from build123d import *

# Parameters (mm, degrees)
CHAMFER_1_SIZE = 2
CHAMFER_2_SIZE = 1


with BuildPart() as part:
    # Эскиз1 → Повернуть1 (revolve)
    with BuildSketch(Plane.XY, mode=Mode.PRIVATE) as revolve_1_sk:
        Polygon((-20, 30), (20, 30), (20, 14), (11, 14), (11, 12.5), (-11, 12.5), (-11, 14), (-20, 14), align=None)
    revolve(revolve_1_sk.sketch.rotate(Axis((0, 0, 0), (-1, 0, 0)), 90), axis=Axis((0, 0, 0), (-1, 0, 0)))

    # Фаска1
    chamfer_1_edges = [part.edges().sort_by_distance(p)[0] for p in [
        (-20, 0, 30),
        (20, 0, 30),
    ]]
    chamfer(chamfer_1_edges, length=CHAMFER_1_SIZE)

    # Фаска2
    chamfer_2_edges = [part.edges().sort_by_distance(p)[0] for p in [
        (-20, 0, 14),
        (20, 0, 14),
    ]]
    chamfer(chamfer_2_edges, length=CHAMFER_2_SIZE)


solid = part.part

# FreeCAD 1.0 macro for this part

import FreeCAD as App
import Part
import Sketcher
from FreeCAD import Vector


def edges_at(feature, points):
    """Names of the edges that pass closest to the given points."""
    edges = feature.Shape.Edges
    near = lambda p: min(range(len(edges)), key=lambda i: edges[i].distToShape(Part.Vertex(*p))[0])
    return sorted({f"Edge{near(p) + 1}" for p in points})

doc = App.newDocument("Part")
body = doc.addObject("PartDesign::Body", "Body")

# Sketch on XY plane
sketch1 = body.newObject("Sketcher::SketchObject", "Sketch")
sketch1.AttachmentSupport = (doc.getObject("XY_Plane"), [""])
sketch1.MapMode = "FlatFace"
sketch1.addGeometry([
    Part.LineSegment(Vector(20, 30, 0), Vector(-20, 30, 0)),  # 0
    Part.LineSegment(Vector(-20, 30, 0), Vector(-20, 14, 0)),  # 1
    Part.LineSegment(Vector(-20, 14, 0), Vector(-11, 14, 0)),  # 2
    Part.LineSegment(Vector(-11, 14, 0), Vector(-11, 12.5, 0)),  # 3
    Part.LineSegment(Vector(-11, 12.5, 0), Vector(11, 12.5, 0)),  # 4
    Part.LineSegment(Vector(11, 12.5, 0), Vector(11, 14, 0)),  # 5
    Part.LineSegment(Vector(11, 14, 0), Vector(20, 14, 0)),  # 6
    Part.LineSegment(Vector(20, 14, 0), Vector(20, 30, 0)),  # 7
], False)
sketch1.addConstraint([
    Sketcher.Constraint("Coincident", 0, 2, 1, 1),
    Sketcher.Constraint("Coincident", 1, 2, 2, 1),
    Sketcher.Constraint("Coincident", 2, 2, 3, 1),
    Sketcher.Constraint("Coincident", 3, 2, 4, 1),
    Sketcher.Constraint("Coincident", 4, 2, 5, 1),
    Sketcher.Constraint("Coincident", 5, 2, 6, 1),
    Sketcher.Constraint("Coincident", 6, 2, 7, 1),
    Sketcher.Constraint("Coincident", 7, 2, 0, 1),
    Sketcher.Constraint("Horizontal", 0),
    Sketcher.Constraint("Vertical", 1),
    Sketcher.Constraint("Horizontal", 2),
    Sketcher.Constraint("Vertical", 3),
    Sketcher.Constraint("Horizontal", 4),
    Sketcher.Constraint("Vertical", 5),
    Sketcher.Constraint("Horizontal", 6),
    Sketcher.Constraint("Vertical", 7),
    Sketcher.Constraint("Symmetric", 2, 2, 5, 2, -2),
    Sketcher.Constraint("Equal", 2, 6),
    Sketcher.Constraint("DistanceX", 0, 2, 0, 1, 40.0),
    Sketcher.Constraint("DistanceX", 2, 1, 2, 2, 9.0),
    Sketcher.Constraint("DistanceY", 1, 2, 1, 1, 16.0),
    Sketcher.Constraint("DistanceY", 3, 2, 3, 1, 1.5),
    Sketcher.Constraint("DistanceY", -1, 1, 0, 2, 30.0),
])
revolution = body.newObject("PartDesign::Revolution", "Revolution")
revolution.Profile = sketch1
revolution.ReferenceAxis = (sketch1, ["H_Axis"])
revolution.Angle = 360
doc.recompute()

chamfer = body.newObject("PartDesign::Chamfer", "Chamfer")
chamfer.Base = (revolution, edges_at(revolution, [(-20, 0, 30), (20, 0, 30)]))
chamfer.Size = 2
doc.recompute()

chamfer2 = body.newObject("PartDesign::Chamfer", "Chamfer001")
chamfer2.Base = (chamfer, edges_at(chamfer, [(-20, 0, 14), (20, 0, 14)]))
chamfer2.Size = 1

doc.recompute()
